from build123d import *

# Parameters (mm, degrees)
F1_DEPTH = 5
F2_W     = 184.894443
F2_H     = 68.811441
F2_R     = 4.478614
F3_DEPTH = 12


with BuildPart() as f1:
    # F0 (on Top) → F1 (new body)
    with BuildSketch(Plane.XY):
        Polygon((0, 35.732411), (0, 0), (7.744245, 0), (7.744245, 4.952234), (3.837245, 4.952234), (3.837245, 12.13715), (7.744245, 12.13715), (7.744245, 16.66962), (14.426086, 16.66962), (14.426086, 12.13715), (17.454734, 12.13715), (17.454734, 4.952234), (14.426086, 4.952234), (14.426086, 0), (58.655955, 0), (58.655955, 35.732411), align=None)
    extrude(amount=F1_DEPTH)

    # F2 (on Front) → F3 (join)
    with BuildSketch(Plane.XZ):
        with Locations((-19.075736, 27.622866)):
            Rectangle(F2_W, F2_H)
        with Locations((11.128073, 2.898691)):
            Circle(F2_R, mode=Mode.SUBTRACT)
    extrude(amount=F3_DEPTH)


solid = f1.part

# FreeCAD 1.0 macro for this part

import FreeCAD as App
import Part
import Sketcher

V = App.Vector

doc = App.newDocument("Part")
body = doc.addObject("PartDesign::Body", "Body")

sketch1 = body.newObject("Sketcher::SketchObject", "Sketch")
sketch1.AttachmentSupport = (doc.getObject("XY_Plane"), [""])
sketch1.MapMode = "FlatFace"
sketch1.addGeometry([
    Part.LineSegment(V(0, 35.732411, 0), V(0, 0, 0)),
    Part.LineSegment(V(0, 0, 0), V(7.744245, 0, 0)),
    Part.LineSegment(V(7.744245, 0, 0), V(7.744245, 4.952234, 0)),
    Part.LineSegment(V(7.744245, 4.952234, 0), V(3.837245, 4.952234, 0)),
    Part.LineSegment(V(3.837245, 4.952234, 0), V(3.837245, 12.13715, 0)),
    Part.LineSegment(V(3.837245, 12.13715, 0), V(7.744245, 12.13715, 0)),
    Part.LineSegment(V(7.744245, 12.13715, 0), V(7.744245, 16.66962, 0)),
    Part.LineSegment(V(7.744245, 16.66962, 0), V(14.426086, 16.66962, 0)),
    Part.LineSegment(V(14.426086, 16.66962, 0), V(14.426086, 12.13715, 0)),
    Part.LineSegment(V(14.426086, 12.13715, 0), V(17.454734, 12.13715, 0)),
    Part.LineSegment(V(17.454734, 12.13715, 0), V(17.454734, 4.952234, 0)),
    Part.LineSegment(V(17.454734, 4.952234, 0), V(14.426086, 4.952234, 0)),
    Part.LineSegment(V(14.426086, 4.952234, 0), V(14.426086, 0, 0)),
    Part.LineSegment(V(14.426086, 0, 0), V(58.655955, 0, 0)),
    Part.LineSegment(V(58.655955, 0, 0), V(58.655955, 35.732411, 0)),
    Part.LineSegment(V(58.655955, 35.732411, 0), V(0, 35.732411, 0)),
], False)
sketch1.addConstraint([
    Sketcher.Constraint("Coincident", 0, 2, 1, 1),
    Sketcher.Constraint("Coincident", 1, 2, 2, 1),
    Sketcher.Constraint("Coincident", 2, 2, 3, 1),
    Sketcher.Constraint("Coincident", 3, 2, 4, 1),
    Sketcher.Constraint("Coincident", 4, 2, 5, 1),
    Sketcher.Constraint("Coincident", 5, 2, 6, 1),
    Sketcher.Constraint("Coincident", 6, 2, 7, 1),
    Sketcher.Constraint("Coincident", 7, 2, 8, 1),
    Sketcher.Constraint("Coincident", 8, 2, 9, 1),
    Sketcher.Constraint("Coincident", 9, 2, 10, 1),
    Sketcher.Constraint("Coincident", 10, 2, 11, 1),
    Sketcher.Constraint("Coincident", 11, 2, 12, 1),
    Sketcher.Constraint("Coincident", 12, 2, 13, 1),
    Sketcher.Constraint("Coincident", 13, 2, 14, 1),
    Sketcher.Constraint("Coincident", 14, 2, 15, 1),
    Sketcher.Constraint("Coincident", 15, 2, 0, 1),
    Sketcher.Constraint("Vertical", 0),
    Sketcher.Constraint("Horizontal", 1),
    Sketcher.Constraint("Vertical", 2),
    Sketcher.Constraint("Horizontal", 3),
    Sketcher.Constraint("Vertical", 4),
    Sketcher.Constraint("Horizontal", 5),
    Sketcher.Constraint("Vertical", 6),
    Sketcher.Constraint("Horizontal", 7),
    Sketcher.Constraint("Vertical", 8),
    Sketcher.Constraint("Horizontal", 9),
    Sketcher.Constraint("Vertical", 10),
    Sketcher.Constraint("Horizontal", 11),
    Sketcher.Constraint("Vertical", 12),
    Sketcher.Constraint("Horizontal", 13),
    Sketcher.Constraint("Vertical", 14),
    Sketcher.Constraint("Horizontal", 15),
    Sketcher.Constraint("Coincident", 0, 2, -1, 1),
    Sketcher.Constraint("PointOnObject", 12, 2, -1),
    Sketcher.Constraint("Horizontal", 5, 2, 8, 2),
    Sketcher.Constraint("Horizontal", 3, 2, 10, 2),
    Sketcher.Constraint("Vertical", 2, 2, 5, 2),
    Sketcher.Constraint("Vertical", 8, 2, 11, 2),
    Sketcher.Constraint("DistanceX", 3, 2, 3, 1, 3.907),
    Sketcher.Constraint("DistanceX", 7, 1, 7, 2, 6.681841),
    Sketcher.Constraint("DistanceX", 13, 1, 13, 2, 44.229869),
    Sketcher.Constraint("DistanceY", 0, 2, 0, 1, 35.732411),
    Sketcher.Constraint("DistanceY", 6, 1, 6, 2, 4.53247),
    Sketcher.Constraint("DistanceX", 1, 1, 1, 2, 7.744245),
    Sketcher.Constraint("DistanceX", 9, 1, 9, 2, 3.028648),
    Sketcher.Constraint("DistanceY", 2, 1, 2, 2, 4.952234),
    Sketcher.Constraint("DistanceY", 4, 1, 4, 2, 7.184916),
])
pad1 = body.newObject("PartDesign::Pad", "Pad")
pad1.Profile = sketch1
pad1.Length = 5

sketch2 = body.newObject("Sketcher::SketchObject", "Sketch001")
sketch2.AttachmentSupport = (doc.getObject("XZ_Plane"), [""])
sketch2.MapMode = "FlatFace"
sketch2.addGeometry([
    Part.LineSegment(V(-111.522958, 62.028587, 0), V(-111.522958, -6.782855, 0)),
    Part.LineSegment(V(-111.522958, -6.782855, 0), V(73.371486, -6.782855, 0)),
    Part.LineSegment(V(73.371486, -6.782855, 0), V(73.371486, 62.028587, 0)),
    Part.LineSegment(V(73.371486, 62.028587, 0), V(-111.522958, 62.028587, 0)),
    Part.Circle(V(11.128073, 2.898691, 0), V(0, 0, 1), 4.478614),
], False)
sketch2.addConstraint([
    Sketcher.Constraint("Coincident", 0, 2, 1, 1),
    Sketcher.Constraint("Coincident", 1, 2, 2, 1),
    Sketcher.Constraint("Coincident", 2, 2, 3, 1),
    Sketcher.Constraint("Coincident", 3, 2, 0, 1),
    Sketcher.Constraint("Vertical", 0),
    Sketcher.Constraint("Horizontal", 1),
    Sketcher.Constraint("Vertical", 2),
    Sketcher.Constraint("Horizontal", 3),
    Sketcher.Constraint("Diameter", 4, 8.957228),
    Sketcher.Constraint("DistanceY", 0, 2, 0, 1, 68.811441),
    Sketcher.Constraint("DistanceX", 1, 1, 1, 2, 184.894443),
    Sketcher.Constraint("DistanceY", -1, 1, 4, 3, 2.898691),
    Sketcher.Constraint("DistanceX", 0, 2, 4, 3, 122.651031),
    Sketcher.Constraint("DistanceX", -1, 1, 4, 3, 11.128073),
    Sketcher.Constraint("DistanceY", 0, 2, -1, 1, 6.782855),
])
pad2 = body.newObject("PartDesign::Pad", "Pad001")
pad2.Profile = sketch2
pad2.Length = 12

doc.recompute()
